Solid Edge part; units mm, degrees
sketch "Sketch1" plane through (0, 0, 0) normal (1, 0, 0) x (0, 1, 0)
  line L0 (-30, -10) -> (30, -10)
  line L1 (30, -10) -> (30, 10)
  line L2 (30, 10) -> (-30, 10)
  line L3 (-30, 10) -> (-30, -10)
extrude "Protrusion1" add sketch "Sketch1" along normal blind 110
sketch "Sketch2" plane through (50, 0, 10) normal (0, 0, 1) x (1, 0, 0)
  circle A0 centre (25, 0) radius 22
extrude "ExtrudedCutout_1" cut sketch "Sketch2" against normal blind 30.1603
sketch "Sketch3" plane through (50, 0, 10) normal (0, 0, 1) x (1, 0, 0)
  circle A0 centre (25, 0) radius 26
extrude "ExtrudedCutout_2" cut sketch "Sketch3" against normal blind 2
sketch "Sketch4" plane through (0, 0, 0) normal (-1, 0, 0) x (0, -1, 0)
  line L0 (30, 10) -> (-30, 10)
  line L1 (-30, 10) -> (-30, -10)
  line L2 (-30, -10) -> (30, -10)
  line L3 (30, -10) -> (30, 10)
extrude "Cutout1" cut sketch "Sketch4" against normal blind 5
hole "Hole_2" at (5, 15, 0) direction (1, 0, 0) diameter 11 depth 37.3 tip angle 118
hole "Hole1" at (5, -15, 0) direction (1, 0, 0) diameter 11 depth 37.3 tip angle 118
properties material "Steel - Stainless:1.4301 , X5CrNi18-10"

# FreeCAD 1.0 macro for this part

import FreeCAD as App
import Part
import Sketcher

V = App.Vector

doc = App.newDocument("Part")
body = doc.addObject("PartDesign::Body", "Body")

# Sketch on YZ plane
sketch1 = body.newObject("Sketcher::SketchObject", "Sketch")
sketch1.AttachmentSupport = (doc.getObject("YZ_Plane"), [""])
sketch1.MapMode = "FlatFace"
sketch1.addGeometry([
    Part.LineSegment(V(-30, 10, 0), V(-30, -10, 0)),
    Part.LineSegment(V(-30, -10, 0), V(30, -10, 0)),
    Part.LineSegment(V(30, -10, 0), V(30, 10, 0)),
    Part.LineSegment(V(30, 10, 0), V(-30, 10, 0)),
], False)
sketch1.addConstraint([
    Sketcher.Constraint("Coincident", 0, 2, 1, 1),
    Sketcher.Constraint("Coincident", 1, 2, 2, 1),
    Sketcher.Constraint("Coincident", 2, 2, 3, 1),
    Sketcher.Constraint("Coincident", 3, 2, 0, 1),
    Sketcher.Constraint("Vertical", 0),
    Sketcher.Constraint("Horizontal", 1),
    Sketcher.Constraint("Vertical", 2),
    Sketcher.Constraint("Horizontal", 3),
    Sketcher.Constraint("Symmetric", 0, 2, 2, 2, -1, 1),
    Sketcher.Constraint("DistanceX", 1, 1, 1, 2, 60.0),
    Sketcher.Constraint("DistanceY", 0, 2, 0, 1, 20.0),
])
pad1 = body.newObject("PartDesign::Pad", "Pad")
pad1.Profile = sketch1
pad1.Length = 110

# Sketch on XY plane
sketch2 = body.newObject("Sketcher::SketchObject", "Sketch001")
sketch2.AttachmentSupport = (doc.getObject("XY_Plane"), [""])
sketch2.MapMode = "FlatFace"
sketch2.AttachmentOffset = App.Placement(V(0, 0, 10), App.Rotation())
sketch2.addGeometry(Part.Circle(V(75, 0, 0), V(0, 0, 1), 22), False)
sketch2.addConstraint([
    Sketcher.Constraint("PointOnObject", 0, 3, -1),
    Sketcher.Constraint("Diameter", 0, 44.0),
    Sketcher.Constraint("DistanceX", -1, 1, 0, 3, 75.0),
])
pocket1 = body.newObject("PartDesign::Pocket", "Pocket")
pocket1.Profile = sketch2
pocket1.Length = 30.1603

# Sketch on XY plane
sketch3 = body.newObject("Sketcher::SketchObject", "Sketch002")
sketch3.AttachmentSupport = (doc.getObject("XY_Plane"), [""])
sketch3.MapMode = "FlatFace"
sketch3.AttachmentOffset = App.Placement(V(0, 0, 10), App.Rotation())
sketch3.addGeometry(Part.Circle(V(75, 0, 0), V(0, 0, 1), 26), False)
sketch3.addConstraint([
    Sketcher.Constraint("PointOnObject", 0, 3, -1),
    Sketcher.Constraint("Diameter", 0, 52.0),
    Sketcher.Constraint("DistanceX", -1, 1, 0, 3, 75.0),
])
pocket2 = body.newObject("PartDesign::Pocket", "Pocket001")
pocket2.Profile = sketch3
pocket2.Length = 2

# Sketch on YZ plane
sketch4 = body.newObject("Sketcher::SketchObject", "Sketch003")
sketch4.AttachmentSupport = (doc.getObject("YZ_Plane"), [""])
sketch4.MapMode = "FlatFace"
sketch4.addGeometry([
    Part.LineSegment(V(-30, -10, 0), V(-30, 10, 0)),
    Part.LineSegment(V(-30, 10, 0), V(30, 10, 0)),
    Part.LineSegment(V(30, 10, 0), V(30, -10, 0)),
    Part.LineSegment(V(30, -10, 0), V(-30, -10, 0)),
], False)
sketch4.addConstraint([
    Sketcher.Constraint("Coincident", 0, 2, 1, 1),
    Sketcher.Constraint("Coincident", 1, 2, 2, 1),
    Sketcher.Constraint("Coincident", 2, 2, 3, 1),
    Sketcher.Constraint("Coincident", 3, 2, 0, 1),
    Sketcher.Constraint("Vertical", 0),
    Sketcher.Constraint("Horizontal", 1),
    Sketcher.Constraint("Vertical", 2),
    Sketcher.Constraint("Horizontal", 3),
    Sketcher.Constraint("Symmetric", 0, 2, 2, 2, -1, 1),
    Sketcher.Constraint("DistanceX", 1, 1, 1, 2, 60.0),
    Sketcher.Constraint("DistanceY", 0, 1, 0, 2, 20.0),
])
pocket3 = body.newObject("PartDesign::Pocket", "Pocket002")
pocket3.Profile = sketch4
pocket3.Length = 5
pocket3.Reversed = True

# Sketch on YZ plane
sketch5 = body.newObject("Sketcher::SketchObject", "Sketch004")
sketch5.AttachmentSupport = (doc.getObject("YZ_Plane"), [""])
sketch5.MapMode = "FlatFace"
sketch5.AttachmentOffset = App.Placement(V(0, 0, 5), App.Rotation())
sketch5.addGeometry(Part.Circle(V(15, 0, 0), V(0, 0, 1), 6), False)
sketch5.addConstraint([
    Sketcher.Constraint("PointOnObject", 0, 3, -1),
    Sketcher.Constraint("Diameter", 0, 11.0),
    Sketcher.Constraint("DistanceX", -1, 1, 0, 3, 15.0),
])
doc.recompute()
hole = body.newObject("PartDesign::Hole", "Hole")
hole.Profile = sketch5
hole.ThreadType = "None"
hole.Diameter = 11
hole.DepthType = "Dimension"
hole.Depth = 37.3
hole.DrillPoint = "Angled"
hole.DrillPointAngle = 118
hole.Reversed = True

# Sketch on YZ plane
sketch6 = body.newObject("Sketcher::SketchObject", "Sketch005")
sketch6.AttachmentSupport = (doc.getObject("YZ_Plane"), [""])
sketch6.MapMode = "FlatFace"
sketch6.AttachmentOffset = App.Placement(V(0, 0, 5), App.Rotation())
sketch6.addGeometry(Part.Circle(V(-15, 0, 0), V(0, 0, 1), 6), False)
sketch6.addConstraint([
    Sketcher.Constraint("PointOnObject", 0, 3, -1),
    Sketcher.Constraint("Diameter", 0, 11.0),
    Sketcher.Constraint("DistanceX", 0, 3, -1, 1, 15.0),
])
doc.recompute()
hole2 = body.newObject("PartDesign::Hole", "Hole001")
hole2.Profile = sketch6
hole2.ThreadType = "None"
hole2.Diameter = 11
hole2.DepthType = "Dimension"
hole2.Depth = 37.3
hole2.DrillPoint = "Angled"
hole2.DrillPointAngle = 118
hole2.Reversed = True

doc.recompute()
